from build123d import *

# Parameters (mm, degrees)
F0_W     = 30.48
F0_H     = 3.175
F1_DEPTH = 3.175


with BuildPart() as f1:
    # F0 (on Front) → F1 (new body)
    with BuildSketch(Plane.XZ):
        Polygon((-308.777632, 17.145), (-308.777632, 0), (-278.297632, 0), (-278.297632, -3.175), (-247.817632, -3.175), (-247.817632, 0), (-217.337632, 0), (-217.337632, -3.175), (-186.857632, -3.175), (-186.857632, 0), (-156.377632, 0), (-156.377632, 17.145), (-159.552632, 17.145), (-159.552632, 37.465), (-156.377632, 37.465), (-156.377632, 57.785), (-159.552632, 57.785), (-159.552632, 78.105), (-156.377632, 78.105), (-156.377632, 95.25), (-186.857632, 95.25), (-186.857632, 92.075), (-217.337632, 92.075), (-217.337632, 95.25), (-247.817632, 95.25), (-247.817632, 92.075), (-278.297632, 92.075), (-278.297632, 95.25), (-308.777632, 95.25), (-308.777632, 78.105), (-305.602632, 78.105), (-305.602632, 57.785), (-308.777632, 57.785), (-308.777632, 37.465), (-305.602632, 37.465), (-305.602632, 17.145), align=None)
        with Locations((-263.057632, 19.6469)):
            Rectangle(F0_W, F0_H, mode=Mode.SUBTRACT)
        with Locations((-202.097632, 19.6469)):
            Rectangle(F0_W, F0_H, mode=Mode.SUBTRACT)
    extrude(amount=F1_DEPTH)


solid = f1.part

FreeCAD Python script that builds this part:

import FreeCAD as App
import Part
import Sketcher

V = App.Vector
Q = App.Units.Quantity

doc = App.newDocument("Part")
body = doc.addObject("PartDesign::Body", "Body")

sketch1 = body.newObject("Sketcher::SketchObject", "Sketch")
sketch1.AttachmentSupport = (doc.getObject("XZ_Plane"), [""])
sketch1.MapMode = "FlatFace"
sketch1.addGeometry([
    Part.LineSegment(V(-308.8, 17.1, 0), V(-308.8, 0, 0)),
    Part.LineSegment(V(-308.8, 0, 0), V(-278.3, 0, 0)),
    Part.LineSegment(V(-278.3, 0, 0), V(-278.3, -3.2, 0)),
    Part.LineSegment(V(-278.3, -3.2, 0), V(-247.8, -3.2, 0)),
    Part.LineSegment(V(-247.8, -3.2, 0), V(-247.8, 0, 0)),
    Part.LineSegment(V(-247.8, 0, 0), V(-217.3, 0, 0)),
    Part.LineSegment(V(-217.3, 0, 0), V(-217.3, -3.2, 0)),
    Part.LineSegment(V(-217.3, -3.2, 0), V(-186.9, -3.2, 0)),
    Part.LineSegment(V(-186.9, -3.2, 0), V(-186.9, 0, 0)),
    Part.LineSegment(V(-186.9, 0, 0), V(-156.4, 0, 0)),
    Part.LineSegment(V(-156.4, 0, 0), V(-156.4, 17.1, 0)),
    Part.LineSegment(V(-156.4, 17.1, 0), V(-159.6, 17.1, 0)),
    Part.LineSegment(V(-159.6, 17.1, 0), V(-159.6, 37.5, 0)),
    Part.LineSegment(V(-159.6, 37.5, 0), V(-156.4, 37.5, 0)),
    Part.LineSegment(V(-156.4, 37.5, 0), V(-156.4, 57.8, 0)),
    Part.LineSegment(V(-156.4, 57.8, 0), V(-159.6, 57.8, 0)),
    Part.LineSegment(V(-159.6, 57.8, 0), V(-159.6, 78.1, 0)),
    Part.LineSegment(V(-159.6, 78.1, 0), V(-156.4, 78.1, 0)),
    Part.LineSegment(V(-156.4, 78.1, 0), V(-156.4, 95.2, 0)),
    Part.LineSegment(V(-156.4, 95.2, 0), V(-186.9, 95.2, 0)),
    Part.LineSegment(V(-186.9, 95.2, 0), V(-186.9, 92.1, 0)),
    Part.LineSegment(V(-186.9, 92.1, 0), V(-217.3, 92.1, 0)),
    Part.LineSegment(V(-217.3, 92.1, 0), V(-217.3, 95.2, 0)),
    Part.LineSegment(V(-217.3, 95.2, 0), V(-247.8, 95.2, 0)),
    Part.LineSegment(V(-247.8, 95.2, 0), V(-247.8, 92.1, 0)),
    Part.LineSegment(V(-247.8, 92.1, 0), V(-278.3, 92.1, 0)),
    Part.LineSegment(V(-278.3, 92.1, 0), V(-278.3, 95.2, 0)),
    Part.LineSegment(V(-278.3, 95.2, 0), V(-308.8, 95.2, 0)),
    Part.LineSegment(V(-308.8, 95.2, 0), V(-308.8, 78.1, 0)),
    Part.LineSegment(V(-308.8, 78.1, 0), V(-305.6, 78.1, 0)),
    Part.LineSegment(V(-305.6, 78.1, 0), V(-305.6, 57.8, 0)),
    Part.LineSegment(V(-305.6, 57.8, 0), V(-308.8, 57.8, 0)),
    Part.LineSegment(V(-308.8, 57.8, 0), V(-308.8, 37.5, 0)),
    Part.LineSegment(V(-308.8, 37.5, 0), V(-305.6, 37.5, 0)),
    Part.LineSegment(V(-305.6, 37.5, 0), V(-305.6, 17.1, 0)),
    Part.LineSegment(V(-305.6, 17.1, 0), V(-308.8, 17.1, 0)),
    Part.LineSegment(V(-247.8, 18.1, 0), V(-278.3, 18.1, 0)),
    Part.LineSegment(V(-278.3, 18.1, 0), V(-278.3, 21.2, 0)),
    Part.LineSegment(V(-278.3, 21.2, 0), V(-247.8, 21.2, 0)),
    Part.LineSegment(V(-247.8, 21.2, 0), V(-247.8, 18.1, 0)),
    Part.LineSegment(V(-186.9, 18.1, 0), V(-217.3, 18.1, 0)),
    Part.LineSegment(V(-217.3, 18.1, 0), V(-217.3, 21.2, 0)),
    Part.LineSegment(V(-217.3, 21.2, 0), V(-186.9, 21.2, 0)),
    Part.LineSegment(V(-186.9, 21.2, 0), V(-186.9, 18.1, 0)),
], False)
sketch1.addConstraint([
    Sketcher.Constraint("Coincident", 0, 2, 1, 1),
    Sketcher.Constraint("Coincident", 1, 2, 2, 1),
    Sketcher.Constraint("Coincident", 2, 2, 3, 1),
    Sketcher.Constraint("Coincident", 3, 2, 4, 1),
    Sketcher.Constraint("Coincident", 4, 2, 5, 1),
    Sketcher.Constraint("Coincident", 5, 2, 6, 1),
    Sketcher.Constraint("Coincident", 6, 2, 7, 1),
    Sketcher.Constraint("Coincident", 7, 2, 8, 1),
    Sketcher.Constraint("Coincident", 8, 2, 9, 1),
    Sketcher.Constraint("Coincident", 9, 2, 10, 1),
    Sketcher.Constraint("Coincident", 10, 2, 11, 1),
    Sketcher.Constraint("Coincident", 11, 2, 12, 1),
    Sketcher.Constraint("Coincident", 12, 2, 13, 1),
    Sketcher.Constraint("Coincident", 13, 2, 14, 1),
    Sketcher.Constraint("Coincident", 14, 2, 15, 1),
    Sketcher.Constraint("Coincident", 15, 2, 16, 1),
    Sketcher.Constraint("Coincident", 16, 2, 17, 1),
    Sketcher.Constraint("Coincident", 17, 2, 18, 1),
    Sketcher.Constraint("Coincident", 18, 2, 19, 1),
    Sketcher.Constraint("Coincident", 19, 2, 20, 1),
    Sketcher.Constraint("Coincident", 20, 2, 21, 1),
    Sketcher.Constraint("Coincident", 21, 2, 22, 1),
    Sketcher.Constraint("Coincident", 22, 2, 23, 1),
    Sketcher.Constraint("Coincident", 23, 2, 24, 1),
    Sketcher.Constraint("Coincident", 24, 2, 25, 1),
    Sketcher.Constraint("Coincident", 25, 2, 26, 1),
    Sketcher.Constraint("Coincident", 26, 2, 27, 1),
    Sketcher.Constraint("Coincident", 27, 2, 28, 1),
    Sketcher.Constraint("Coincident", 28, 2, 29, 1),
    Sketcher.Constraint("Coincident", 29, 2, 30, 1),
    Sketcher.Constraint("Coincident", 30, 2, 31, 1),
    Sketcher.Constraint("Coincident", 31, 2, 32, 1),
    Sketcher.Constraint("Coincident", 32, 2, 33, 1),
    Sketcher.Constraint("Coincident", 33, 2, 34, 1),
    Sketcher.Constraint("Coincident", 34, 2, 35, 1),
    Sketcher.Constraint("Coincident", 35, 2, 0, 1),
    Sketcher.Constraint("Coincident", 36, 2, 37, 1),
    Sketcher.Constraint("Coincident", 37, 2, 38, 1),
    Sketcher.Constraint("Coincident", 38, 2, 39, 1),
    Sketcher.Constraint("Coincident", 39, 2, 36, 1),
    Sketcher.Constraint("Coincident", 40, 2, 41, 1),
    Sketcher.Constraint("Coincident", 41, 2, 42, 1),
    Sketcher.Constraint("Coincident", 42, 2, 43, 1),
    Sketcher.Constraint("Coincident", 43, 2, 40, 1),
    Sketcher.Constraint("Vertical", 0),
    Sketcher.Constraint("Horizontal", 1),
    Sketcher.Constraint("Vertical", 2),
    Sketcher.Constraint("Horizontal", 3),
    Sketcher.Constraint("Vertical", 4),
    Sketcher.Constraint("Horizontal", 5),
    Sketcher.Constraint("Vertical", 6),
    Sketcher.Constraint("Horizontal", 7),
    Sketcher.Constraint("Vertical", 8),
    Sketcher.Constraint("Horizontal", 9),
    Sketcher.Constraint("Vertical", 10),
    Sketcher.Constraint("Horizontal", 11),
    Sketcher.Constraint("Vertical", 12),
    Sketcher.Constraint("Horizontal", 13),
    Sketcher.Constraint("Vertical", 14),
    Sketcher.Constraint("Horizontal", 15),
    Sketcher.Constraint("Vertical", 16),
    Sketcher.Constraint("Horizontal", 17),
    Sketcher.Constraint("Vertical", 18),
    Sketcher.Constraint("Horizontal", 19),
    Sketcher.Constraint("Vertical", 20),
    Sketcher.Constraint("Horizontal", 21),
    Sketcher.Constraint("Vertical", 22),
    Sketcher.Constraint("Horizontal", 23),
    Sketcher.Constraint("Vertical", 24),
    Sketcher.Constraint("Horizontal", 25),
    Sketcher.Constraint("Vertical", 26),
    Sketcher.Constraint("Horizontal", 27),
    Sketcher.Constraint("Vertical", 28),
    Sketcher.Constraint("Horizontal", 29),
    Sketcher.Constraint("Vertical", 30),
    Sketcher.Constraint("Horizontal", 31),
    Sketcher.Constraint("Vertical", 32),
    Sketcher.Constraint("Horizontal", 33),
    Sketcher.Constraint("Vertical", 34),
    Sketcher.Constraint("Horizontal", 35),
    Sketcher.Constraint("Horizontal", 36),
    Sketcher.Constraint("Vertical", 37),
    Sketcher.Constraint("Horizontal", 38),
    Sketcher.Constraint("Vertical", 39),
    Sketcher.Constraint("Horizontal", 40),
    Sketcher.Constraint("Vertical", 41),
    Sketcher.Constraint("Horizontal", 42),
    Sketcher.Constraint("Vertical", 43),
    Sketcher.Constraint("PointOnObject", 0, 2, -1),
    Sketcher.Constraint("PointOnObject", 4, 2, -1),
    Sketcher.Constraint("PointOnObject", 8, 2, -1),
    Sketcher.Constraint("Horizontal", 3, 2, 6, 2),
    Sketcher.Constraint("Horizontal", 19, 2, 22, 2),
    Sketcher.Constraint("Horizontal", 21, 2, 24, 2),
    Sketcher.Constraint("Horizontal", 23, 2, 26, 2),
    Sketcher.Constraint("Horizontal", 17, 2, 28, 2),
    Sketcher.Constraint("Horizontal", 15, 2, 30, 2),
    Sketcher.Constraint("Horizontal", 13, 2, 32, 2),
    Sketcher.Constraint("Horizontal", 11, 2, 34, 2),
    Sketcher.Constraint("Horizontal", 39, 2, 40, 2),
    Sketcher.Constraint("Horizontal", 38, 2, 41, 2),
    Sketcher.Constraint("Vertical", 10, 2, 13, 2),
    Sketcher.Constraint("Vertical", 12, 2, 15, 2),
    Sketcher.Constraint("Vertical", 14, 2, 17, 2),
    Sketcher.Constraint("Vertical", 8, 2, 19, 2),
    Sketcher.Constraint("Vertical", 6, 2, 21, 2),
    Sketcher.Constraint("Vertical", 4, 2, 23, 2),
    Sketcher.Constraint("Vertical", 2, 2, 25, 2),
    Sketcher.Constraint("Vertical", 0, 2, 27, 2),
    Sketcher.Constraint("Vertical", 28, 2, 31, 2),
    Sketcher.Constraint("Vertical", 30, 2, 33, 2),
    Sketcher.Constraint("Vertical", 26, 2, 36, 2),
    Sketcher.Constraint("Vertical", 24, 2, 38, 2),
    Sketcher.Constraint("Vertical", 22, 2, 40, 2),
    Sketcher.Constraint("Vertical", 20, 2, 42, 2),
    Sketcher.Constraint("Equal", 1, 3),
    Sketcher.Constraint("Equal", 3, 5),
    Sketcher.Constraint("Equal", 5, 7),
    Sketcher.Constraint("Equal", 7, 9),
    Sketcher.Constraint("Equal", 17, 29),
    Sketcher.Constraint("Equal", 35, 2),
    Sketcher.Constraint("Equal", 12, 14),
    Sketcher.Constraint("Equal", 14, 16),
    Sketcher.Constraint("Equal", 10, 18),
    Sketcher.Constraint("Equal", 8, 20),
    Sketcher.Constraint("Equal", 26, 37),
    Sketcher.Constraint("DistanceX", 1, 1, 1, 2, Q("1.2 in")),
    Sketcher.Constraint("DistanceY", 12, 1, 12, 2, Q("0.8 in")),
    Sketcher.Constraint("DistanceY", 7, 2, 10, 2, Q("0.8 in")),
    Sketcher.Constraint("DistanceX", 11, 2, 11, 1, Q("0.125 in")),
    Sketcher.Constraint("DistanceY", -1, 1, 36, 2, Q("0.711 in")),
    Sketcher.Constraint("DistanceX", 0, 2, -1, 1, Q("308.777632 mm")),
])
pad1 = body.newObject("PartDesign::Pad", "Pad")
pad1.Profile = sketch1
pad1.Length = Q("0.125 in")

doc.recompute()
